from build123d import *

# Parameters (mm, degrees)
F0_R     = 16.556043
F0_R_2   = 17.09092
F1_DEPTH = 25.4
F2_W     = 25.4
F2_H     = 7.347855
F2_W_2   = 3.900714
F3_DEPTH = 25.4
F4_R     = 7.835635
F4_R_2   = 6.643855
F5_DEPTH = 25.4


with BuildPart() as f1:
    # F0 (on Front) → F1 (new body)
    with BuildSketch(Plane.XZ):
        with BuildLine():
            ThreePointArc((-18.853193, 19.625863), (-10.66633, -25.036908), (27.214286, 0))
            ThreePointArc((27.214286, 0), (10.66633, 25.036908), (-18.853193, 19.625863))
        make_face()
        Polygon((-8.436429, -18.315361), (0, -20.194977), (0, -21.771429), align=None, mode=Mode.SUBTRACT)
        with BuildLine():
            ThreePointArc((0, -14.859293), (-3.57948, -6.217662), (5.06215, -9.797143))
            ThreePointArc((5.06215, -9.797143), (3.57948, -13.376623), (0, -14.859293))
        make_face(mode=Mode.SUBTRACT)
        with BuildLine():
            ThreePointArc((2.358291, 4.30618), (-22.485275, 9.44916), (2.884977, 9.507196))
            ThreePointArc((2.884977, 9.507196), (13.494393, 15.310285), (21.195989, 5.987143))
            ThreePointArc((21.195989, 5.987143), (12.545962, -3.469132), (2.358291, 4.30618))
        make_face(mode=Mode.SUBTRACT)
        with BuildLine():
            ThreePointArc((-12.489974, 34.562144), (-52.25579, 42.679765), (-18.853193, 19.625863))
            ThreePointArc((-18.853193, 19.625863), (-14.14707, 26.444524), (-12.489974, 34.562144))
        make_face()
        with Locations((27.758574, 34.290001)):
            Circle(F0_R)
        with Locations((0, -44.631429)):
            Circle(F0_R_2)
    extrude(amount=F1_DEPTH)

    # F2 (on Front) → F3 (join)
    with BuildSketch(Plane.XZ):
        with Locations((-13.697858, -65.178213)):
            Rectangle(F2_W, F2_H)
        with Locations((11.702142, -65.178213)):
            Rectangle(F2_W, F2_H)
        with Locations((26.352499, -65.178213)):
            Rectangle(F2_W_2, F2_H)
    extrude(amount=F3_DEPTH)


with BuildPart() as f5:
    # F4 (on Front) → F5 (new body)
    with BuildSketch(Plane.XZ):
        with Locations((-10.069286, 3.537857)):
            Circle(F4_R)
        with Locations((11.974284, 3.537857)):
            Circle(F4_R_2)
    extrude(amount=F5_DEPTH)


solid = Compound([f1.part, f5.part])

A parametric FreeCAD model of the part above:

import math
import FreeCAD as App
import Part
import Sketcher
Q = App.Units.Quantity


def add_polygon(sketch, points):
    """Adds a closed chain of lines whose ends are joined by coincident constraints."""
    first, n = sketch.GeometryCount, len(points)
    for a, b in zip(points, points[1:] + points[:1]):
        sketch.addGeometry(Part.LineSegment(App.Vector(*a, 0), App.Vector(*b, 0)), False)
    for i in range(n):
        sketch.addConstraint(Sketcher.Constraint("Coincident", first + i, 2, first + (i + 1) % n, 1))

doc = App.newDocument("Part")
body = doc.addObject("PartDesign::Body", "Body")
body.AllowCompound = True

# Sketch on XZ plane
sketch1 = body.newObject("Sketcher::SketchObject", "Sketch")
sketch1.AttachmentSupport = (doc.getObject("XZ_Plane"), [""])
sketch1.MapMode = "FlatFace"
sketch1.addGeometry(Part.ArcOfCircle(Part.Circle(App.Vector(0, 0, 0), App.Vector(0, 0, 1), 27.2), math.radians(134), math.radians(360)), False)  # 0
sketch1.addGeometry(Part.ArcOfCircle(Part.Circle(App.Vector(0, 0, 0), App.Vector(0, 0, 1), 27.2), math.radians(0), math.radians(134)), False)  # 1
add_polygon(sketch1, [(0, -21.8), (-8.4, -18.3), (0, -20.2)])  # lines 2-4
sketch1.addGeometry(Part.ArcOfCircle(Part.Circle(App.Vector(0, -9.8, 0), App.Vector(0, 0, 1), 5.1), math.radians(-90), math.radians(0)), False)  # 5
sketch1.addGeometry(Part.ArcOfCircle(Part.Circle(App.Vector(0, -9.8, 0), App.Vector(0, 0, 1), 5.1), math.radians(0), math.radians(270)), False)  # 6
sketch1.addGeometry(Part.ArcOfCircle(Part.Circle(App.Vector(11.7, 6, 0), App.Vector(0, 0, 1), 9.5), math.radians(-170), math.radians(0)), False)  # 7
sketch1.addGeometry(Part.ArcOfCircle(Part.Circle(App.Vector(-9.8, 8.2, 0), App.Vector(0, 0, 1), 12.8), math.radians(6), math.radians(342)), False)  # 8
sketch1.addGeometry(Part.ArcOfCircle(Part.Circle(App.Vector(11.7, 6, 0), App.Vector(0, 0, 1), 9.5), math.radians(0), math.radians(158)), False)  # 9
sketch1.addGeometry(Part.ArcOfCircle(Part.Circle(App.Vector(-33.2, 34.6, 0), App.Vector(0, 0, 1), 20.7), math.radians(0), math.radians(314)), False)  # 10
sketch1.addGeometry(Part.ArcOfCircle(Part.Circle(App.Vector(-33.2, 34.6, 0), App.Vector(0, 0, 1), 20.7), math.radians(-46), math.radians(0)), False)  # 11
sketch1.addGeometry(Part.Circle(App.Vector(27.8, 34.3, 0), App.Vector(0, 0, 1), 16.6), False)  # 12
sketch1.addGeometry(Part.Circle(App.Vector(0, -44.6, 0), App.Vector(0, 0, 1), 17.1), False)  # 13
sketch1.addConstraint([
    Sketcher.Constraint("Tangent", 0, 1, 1, 2),
    Sketcher.Constraint("Coincident", 1, 1, 0, 2),
    Sketcher.Constraint("Tangent", 5, 1, 6, 2),
    Sketcher.Constraint("Coincident", 6, 1, 5, 2),
    Sketcher.Constraint("Coincident", 7, 1, 8, 2),
    Sketcher.Constraint("Coincident", 8, 1, 9, 2),
    Sketcher.Constraint("Tangent", 9, 1, 7, 2),
    Sketcher.Constraint("Tangent", 10, 1, 11, 2),
    Sketcher.Constraint("Coincident", 11, 1, 10, 2),
    Sketcher.Constraint("Vertical", 4),
    Sketcher.Constraint("Coincident", 0, 3, -1, 1),
    Sketcher.Constraint("Coincident", 11, 1, 0, 1),
    Sketcher.Constraint("Equal", 7, 9),
    Sketcher.Constraint("PointOnObject", 6, 3, -2),
    Sketcher.Constraint("PointOnObject", 13, 3, -2),
    Sketcher.Constraint("PointOnObject", 1, 1, -1),
    Sketcher.Constraint("PointOnObject", 3, 2, -2),
    Sketcher.Constraint("PointOnObject", 5, 1, -2),
    Sketcher.Constraint("Horizontal", 7, 3, 9, 1),
    Sketcher.Constraint("Horizontal", 11, 3, 10, 1),
    Sketcher.Constraint("DistanceY", -1, 1, 12, 3, Q("1.35 in")),
    Sketcher.Constraint("Diameter", 13, Q("34.18184 mm")),
    Sketcher.Constraint("Radius", 6, Q("5.06215 mm")),
    Sketcher.Constraint("Radius", 7, Q("9.493848 mm")),
    Sketcher.Constraint("Radius", 11, Q("20.711459 mm")),
    Sketcher.Constraint("DistanceY", 7, 3, 10, 3, Q("1.1250001 in")),
    Sketcher.Constraint("Diameter", 12, Q("33.112086 mm")),
    Sketcher.Constraint("Radius", 0, Q("27.214286 mm")),
    Sketcher.Constraint("Radius", 8, Q("12.753022 mm")),
    Sketcher.Constraint("DistanceY", 4, 2, 4, 1, Q("1.576452 mm")),
    Sketcher.Constraint("DistanceX", 7, 1, 9, 1, Q("18.837698 mm")),
    Sketcher.Constraint("Distance", 3, Q("8.64328 mm")),
    Sketcher.Constraint("DistanceY", 5, 3, -1, 1, Q("9.797141 mm")),
    Sketcher.Constraint("DistanceX", -1, 1, 7, 3, Q("11.702141 mm")),
    Sketcher.Constraint("DistanceX", 10, 3, -1, 1, Q("33.20143 mm")),
    Sketcher.Constraint("DistanceY", 13, 3, -1, 1, Q("44.631429 mm")),
    Sketcher.Constraint("DistanceX", 2, 2, -1, 1, Q("8.436429 mm")),
    Sketcher.Constraint("DistanceY", 2, 2, -1, 1, Q("18.315361 mm")),
    Sketcher.Constraint("DistanceY", 1, 3, 8, 3, Q("8.164288 mm")),
    Sketcher.Constraint("DistanceX", 0, 1, 8, 3, Q("9.05605 mm")),
    Sketcher.Constraint("DistanceY", 5, 1, 6, 1, Q("5.06215 mm")),
    Sketcher.Constraint("DistanceX", -1, 1, 12, 3, Q("27.758574 mm")),
])
pad1 = body.newObject("PartDesign::Pad", "Pad")
pad1.Profile = sketch1
pad1.Length = Q("1 in")

# Sketch on XZ plane
sketch2 = body.newObject("Sketcher::SketchObject", "Sketch001")
sketch2.AttachmentSupport = (doc.getObject("XZ_Plane"), [""])
sketch2.MapMode = "FlatFace"
add_polygon(sketch2, [(-26, -62), (-26, -69), (28, -69), (28, -62)])  # lines 0-3
sketch2.addConstraint([
    Sketcher.Constraint("Vertical", 0),
    Sketcher.Constraint("Horizontal", 1),
    Sketcher.Constraint("Vertical", 2),
    Sketcher.Constraint("Horizontal", 3),
    Sketcher.Constraint("DistanceX", 1, 1, 1, 2, Q("54.700714 mm")),
    Sketcher.Constraint("DistanceY", 0, 2, 0, 1, Q("7.347855 mm")),
    Sketcher.Constraint("DistanceY", 0, 2, -1, 1, Q("68.852141 mm")),
    Sketcher.Constraint("DistanceX", 0, 2, -1, 1, Q("26.397858 mm")),
])
pad2 = body.newObject("PartDesign::Pad", "Pad001")
pad2.Profile = sketch2
pad2.Length = Q("1 in")
body2 = doc.addObject("PartDesign::Body", "Body001")
body2.AllowCompound = True

# Sketch on XZ plane
sketch3 = body2.newObject("Sketcher::SketchObject", "Sketch002")
sketch3.AttachmentSupport = (doc.getObject("XZ_Plane001"), [""])
sketch3.MapMode = "FlatFace"
sketch3.addGeometry([
    Part.Circle(App.Vector(-10, 4, 0), App.Vector(0, 0, 1), 8),
    Part.Circle(App.Vector(12, 4, 0), App.Vector(0, 0, 1), 7),
], False)
sketch3.addConstraint([
    Sketcher.Constraint("Horizontal", 0, 3, 1, 3),
    Sketcher.Constraint("Diameter", 0, Q("15.67127 mm")),
    Sketcher.Constraint("Diameter", 1, Q("13.28771 mm")),
    Sketcher.Constraint("DistanceX", 0, 3, 1, 3, Q("22.04357 mm")),
    Sketcher.Constraint("DistanceX", 0, 3, -1, 1, Q("10.069286 mm")),
    Sketcher.Constraint("DistanceY", -1, 1, 0, 3, Q("3.537857 mm")),
])
pad3 = body2.newObject("PartDesign::Pad", "Pad002")
pad3.Profile = sketch3
pad3.Length = Q("1 in")

doc.recompute()
